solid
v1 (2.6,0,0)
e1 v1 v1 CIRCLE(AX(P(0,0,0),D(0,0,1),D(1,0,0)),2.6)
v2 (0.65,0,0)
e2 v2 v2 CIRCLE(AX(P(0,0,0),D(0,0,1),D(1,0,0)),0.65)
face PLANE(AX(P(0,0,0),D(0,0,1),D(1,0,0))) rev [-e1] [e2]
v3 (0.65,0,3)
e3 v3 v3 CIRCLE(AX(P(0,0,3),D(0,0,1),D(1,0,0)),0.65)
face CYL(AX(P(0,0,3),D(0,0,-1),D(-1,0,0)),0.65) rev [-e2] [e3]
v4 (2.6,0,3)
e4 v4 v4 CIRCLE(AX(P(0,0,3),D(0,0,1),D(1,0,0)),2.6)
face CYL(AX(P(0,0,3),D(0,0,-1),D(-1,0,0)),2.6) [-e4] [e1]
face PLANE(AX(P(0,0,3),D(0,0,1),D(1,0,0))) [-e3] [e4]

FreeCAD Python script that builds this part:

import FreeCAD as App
import Part
import Sketcher

V = App.Vector

doc = App.newDocument("Part")
body = doc.addObject("PartDesign::Body", "Body")

# Sketch on XY plane
sketch1 = body.newObject("Sketcher::SketchObject", "Sketch")
sketch1.AttachmentSupport = (doc.getObject("XY_Plane"), [""])
sketch1.MapMode = "FlatFace"
sketch1.addGeometry([
    Part.Circle(V(0, 0, 0), V(0, 0, 1), 2.6),
    Part.Circle(V(0, 0, 0), V(0, 0, 1), 0.7),
], False)
sketch1.addConstraint([
    Sketcher.Constraint("Coincident", 0, 3, -1, 1),
    Sketcher.Constraint("Coincident", 1, 3, -1, 1),
    Sketcher.Constraint("Diameter", 0, 5.2),
    Sketcher.Constraint("Diameter", 1, 1.3),
])
pad1 = body.newObject("PartDesign::Pad", "Pad")
pad1.Profile = sketch1
pad1.Length = 3

doc.recompute()
